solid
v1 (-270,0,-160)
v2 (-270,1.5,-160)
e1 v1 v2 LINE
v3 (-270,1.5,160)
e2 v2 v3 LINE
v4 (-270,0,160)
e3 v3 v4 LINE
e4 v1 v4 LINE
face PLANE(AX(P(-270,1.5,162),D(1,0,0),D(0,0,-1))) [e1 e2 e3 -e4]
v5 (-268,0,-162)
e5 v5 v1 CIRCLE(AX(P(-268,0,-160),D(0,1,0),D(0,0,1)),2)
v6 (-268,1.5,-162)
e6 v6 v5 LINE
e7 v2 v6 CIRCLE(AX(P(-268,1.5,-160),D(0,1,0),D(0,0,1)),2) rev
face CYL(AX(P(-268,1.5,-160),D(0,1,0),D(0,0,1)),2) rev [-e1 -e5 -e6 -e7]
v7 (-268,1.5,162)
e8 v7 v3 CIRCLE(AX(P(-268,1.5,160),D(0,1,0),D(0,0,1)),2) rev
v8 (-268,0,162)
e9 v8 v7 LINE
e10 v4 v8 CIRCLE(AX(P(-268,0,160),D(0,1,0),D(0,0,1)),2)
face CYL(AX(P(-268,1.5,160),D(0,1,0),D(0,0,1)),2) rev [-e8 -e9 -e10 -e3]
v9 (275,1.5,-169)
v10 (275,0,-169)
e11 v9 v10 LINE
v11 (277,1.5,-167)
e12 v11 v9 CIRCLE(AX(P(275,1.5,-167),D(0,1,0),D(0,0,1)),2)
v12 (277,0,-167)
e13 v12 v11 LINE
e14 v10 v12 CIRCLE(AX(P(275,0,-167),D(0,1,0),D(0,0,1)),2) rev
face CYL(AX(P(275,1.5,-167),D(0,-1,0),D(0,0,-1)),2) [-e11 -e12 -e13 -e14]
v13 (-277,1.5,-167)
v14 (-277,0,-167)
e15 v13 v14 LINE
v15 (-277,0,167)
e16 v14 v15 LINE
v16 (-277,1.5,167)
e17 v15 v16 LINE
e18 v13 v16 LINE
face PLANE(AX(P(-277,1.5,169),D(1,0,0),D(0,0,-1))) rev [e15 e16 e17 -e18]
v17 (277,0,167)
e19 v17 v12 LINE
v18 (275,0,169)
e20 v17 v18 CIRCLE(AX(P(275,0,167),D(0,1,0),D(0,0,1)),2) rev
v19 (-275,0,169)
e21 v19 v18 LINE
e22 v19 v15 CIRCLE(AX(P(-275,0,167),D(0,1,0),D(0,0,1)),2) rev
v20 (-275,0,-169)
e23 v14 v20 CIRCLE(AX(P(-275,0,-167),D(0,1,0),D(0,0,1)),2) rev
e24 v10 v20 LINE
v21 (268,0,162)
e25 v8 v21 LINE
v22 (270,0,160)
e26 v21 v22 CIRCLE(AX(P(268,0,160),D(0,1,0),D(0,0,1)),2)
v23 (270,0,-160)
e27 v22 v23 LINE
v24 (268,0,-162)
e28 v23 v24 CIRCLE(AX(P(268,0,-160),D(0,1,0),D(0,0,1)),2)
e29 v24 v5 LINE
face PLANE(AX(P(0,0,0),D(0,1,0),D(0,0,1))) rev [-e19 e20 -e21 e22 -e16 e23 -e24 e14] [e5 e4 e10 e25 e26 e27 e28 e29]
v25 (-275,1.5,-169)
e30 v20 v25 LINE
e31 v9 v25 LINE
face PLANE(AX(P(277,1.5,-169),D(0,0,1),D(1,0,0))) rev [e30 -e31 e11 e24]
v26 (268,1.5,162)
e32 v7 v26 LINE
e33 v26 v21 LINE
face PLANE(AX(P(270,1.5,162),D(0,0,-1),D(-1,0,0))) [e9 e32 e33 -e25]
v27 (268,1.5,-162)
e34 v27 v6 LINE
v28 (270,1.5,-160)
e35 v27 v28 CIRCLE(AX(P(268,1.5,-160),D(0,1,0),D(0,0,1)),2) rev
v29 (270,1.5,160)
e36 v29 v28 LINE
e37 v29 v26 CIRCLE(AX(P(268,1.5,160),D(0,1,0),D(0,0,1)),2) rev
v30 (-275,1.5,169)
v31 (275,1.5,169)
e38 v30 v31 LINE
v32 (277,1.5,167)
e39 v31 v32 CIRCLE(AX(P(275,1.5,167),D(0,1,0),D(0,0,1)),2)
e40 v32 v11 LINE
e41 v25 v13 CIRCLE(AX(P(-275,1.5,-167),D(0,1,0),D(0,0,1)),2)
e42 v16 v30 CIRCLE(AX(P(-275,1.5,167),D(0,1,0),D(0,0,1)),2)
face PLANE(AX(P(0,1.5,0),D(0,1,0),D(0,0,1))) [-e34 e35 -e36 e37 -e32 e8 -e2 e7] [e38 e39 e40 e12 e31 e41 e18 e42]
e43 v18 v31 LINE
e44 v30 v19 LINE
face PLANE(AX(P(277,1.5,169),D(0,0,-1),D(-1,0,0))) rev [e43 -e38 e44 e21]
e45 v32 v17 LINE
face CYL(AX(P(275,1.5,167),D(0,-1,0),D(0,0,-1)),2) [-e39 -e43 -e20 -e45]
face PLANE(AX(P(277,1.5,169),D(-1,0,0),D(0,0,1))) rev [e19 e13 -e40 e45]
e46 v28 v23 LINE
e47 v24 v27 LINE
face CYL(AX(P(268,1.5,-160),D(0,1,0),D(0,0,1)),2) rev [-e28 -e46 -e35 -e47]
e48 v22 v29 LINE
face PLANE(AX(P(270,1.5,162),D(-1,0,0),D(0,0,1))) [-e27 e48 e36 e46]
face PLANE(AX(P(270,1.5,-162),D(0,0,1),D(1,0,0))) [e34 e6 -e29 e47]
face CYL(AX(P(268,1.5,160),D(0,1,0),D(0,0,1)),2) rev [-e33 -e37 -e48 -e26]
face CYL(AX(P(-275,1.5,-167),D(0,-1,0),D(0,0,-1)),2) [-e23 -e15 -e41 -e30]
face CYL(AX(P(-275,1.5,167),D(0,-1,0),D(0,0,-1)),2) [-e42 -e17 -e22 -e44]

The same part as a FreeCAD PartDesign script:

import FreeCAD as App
import Part
import Sketcher


def edges_at(feature, points):
    """Names of the edges that pass closest to the given points."""
    edges = feature.Shape.Edges
    near = lambda p: min(range(len(edges)), key=lambda i: edges[i].distToShape(Part.Vertex(*p))[0])
    return sorted({f"Edge{near(p) + 1}" for p in points})

doc = App.newDocument("Part")
body = doc.addObject("PartDesign::Body", "Body")

# Sketch on XZ plane
sketch1 = body.newObject("Sketcher::SketchObject", "Sketch")
sketch1.AttachmentSupport = (doc.getObject("XZ_Plane"), [""])
sketch1.MapMode = "FlatFace"
sketch1.addGeometry(Part.LineSegment(App.Vector(-277, -169, 0), App.Vector(-277, 169, 0)), False)
sketch1.addGeometry(Part.LineSegment(App.Vector(-277, 169, 0), App.Vector(277, 169, 0)), False)
sketch1.addGeometry(Part.LineSegment(App.Vector(277, 169, 0), App.Vector(277, -169, 0)), False)
sketch1.addGeometry(Part.LineSegment(App.Vector(277, -169, 0), App.Vector(-277, -169, 0)), False)
sketch1.addGeometry(Part.LineSegment(App.Vector(270, 162, 0), App.Vector(-270, 162, 0)), False)
sketch1.addGeometry(Part.LineSegment(App.Vector(-270, 162, 0), App.Vector(-270, -162, 0)), False)
sketch1.addGeometry(Part.LineSegment(App.Vector(-270, -162, 0), App.Vector(270, -162, 0)), False)
sketch1.addGeometry(Part.LineSegment(App.Vector(270, -162, 0), App.Vector(270, 162, 0)), False)
sketch1.addConstraint(Sketcher.Constraint("Coincident", 0, 2, 1, 1))
sketch1.addConstraint(Sketcher.Constraint("Coincident", 1, 2, 2, 1))
sketch1.addConstraint(Sketcher.Constraint("Coincident", 2, 2, 3, 1))
sketch1.addConstraint(Sketcher.Constraint("Coincident", 3, 2, 0, 1))
sketch1.addConstraint(Sketcher.Constraint("Coincident", 4, 2, 5, 1))
sketch1.addConstraint(Sketcher.Constraint("Coincident", 5, 2, 6, 1))
sketch1.addConstraint(Sketcher.Constraint("Coincident", 6, 2, 7, 1))
sketch1.addConstraint(Sketcher.Constraint("Coincident", 7, 2, 4, 1))
sketch1.addConstraint(Sketcher.Constraint("Vertical", 0))
sketch1.addConstraint(Sketcher.Constraint("Horizontal", 1))
sketch1.addConstraint(Sketcher.Constraint("Vertical", 2))
sketch1.addConstraint(Sketcher.Constraint("Horizontal", 3))
sketch1.addConstraint(Sketcher.Constraint("Horizontal", 4))
sketch1.addConstraint(Sketcher.Constraint("Vertical", 5))
sketch1.addConstraint(Sketcher.Constraint("Horizontal", 6))
sketch1.addConstraint(Sketcher.Constraint("Vertical", 7))
sketch1.addConstraint(Sketcher.Constraint("Symmetric", 0, 2, 2, 2, -1, 1))
sketch1.addConstraint(Sketcher.Constraint("Symmetric", 4, 2, 6, 2, -1, 1))
sketch1.addConstraint(Sketcher.Constraint("DistanceX", 1, 1, 1, 2, 554.0))
sketch1.addConstraint(Sketcher.Constraint("DistanceX", 4, 2, 4, 1, 540.0))
sketch1.addConstraint(Sketcher.Constraint("DistanceY", 0, 1, 0, 2, 338.0))
sketch1.addConstraint(Sketcher.Constraint("DistanceY", 5, 2, 5, 1, 324.0))
pad1 = body.newObject("PartDesign::Pad", "Pad")
pad1.Profile = sketch1
pad1.Length = 1.5
pad1.Reversed = True
doc.recompute()

fillet = body.newObject("PartDesign::Fillet", "Fillet")
fillet.Base = (pad1, edges_at(pad1, [
    (-270, 0.75, -162),
    (-270, 0.75, 162),
    (270, 0.75, 162),
    (270, 0.75, -162),
    (-277, 0.75, -169),
    (277, 0.75, -169),
    (277, 0.75, 169),
    (-277, 0.75, 169),
]))
fillet.Radius = 2

doc.recompute()
